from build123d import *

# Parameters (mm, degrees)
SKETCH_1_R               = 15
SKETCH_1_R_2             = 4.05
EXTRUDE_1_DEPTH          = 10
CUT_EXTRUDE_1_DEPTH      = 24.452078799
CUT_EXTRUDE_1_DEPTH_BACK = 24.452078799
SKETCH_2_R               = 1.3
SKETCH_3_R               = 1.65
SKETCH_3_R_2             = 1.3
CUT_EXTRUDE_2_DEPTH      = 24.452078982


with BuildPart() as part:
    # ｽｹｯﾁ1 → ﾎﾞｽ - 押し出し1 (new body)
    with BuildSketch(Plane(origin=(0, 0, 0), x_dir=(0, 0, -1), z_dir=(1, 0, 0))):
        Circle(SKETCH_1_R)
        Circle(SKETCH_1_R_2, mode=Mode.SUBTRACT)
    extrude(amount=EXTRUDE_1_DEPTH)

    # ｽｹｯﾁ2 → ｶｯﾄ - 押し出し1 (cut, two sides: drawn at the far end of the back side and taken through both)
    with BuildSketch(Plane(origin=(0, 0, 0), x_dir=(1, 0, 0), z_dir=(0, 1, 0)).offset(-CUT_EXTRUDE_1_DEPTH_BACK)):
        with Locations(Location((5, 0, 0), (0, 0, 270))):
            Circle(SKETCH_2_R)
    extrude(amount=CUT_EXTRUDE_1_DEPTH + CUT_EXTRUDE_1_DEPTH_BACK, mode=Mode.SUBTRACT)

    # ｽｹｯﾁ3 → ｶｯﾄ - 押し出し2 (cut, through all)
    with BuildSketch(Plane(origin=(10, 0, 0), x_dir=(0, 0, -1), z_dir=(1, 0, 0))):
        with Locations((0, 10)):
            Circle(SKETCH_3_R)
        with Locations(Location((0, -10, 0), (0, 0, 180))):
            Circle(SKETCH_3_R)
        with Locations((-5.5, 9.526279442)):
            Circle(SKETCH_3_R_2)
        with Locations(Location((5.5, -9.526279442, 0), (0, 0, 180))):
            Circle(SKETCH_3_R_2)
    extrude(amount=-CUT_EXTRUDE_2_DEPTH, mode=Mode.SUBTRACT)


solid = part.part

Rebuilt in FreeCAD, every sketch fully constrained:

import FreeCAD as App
import Part
import Sketcher
Q = App.Units.Quantity

doc = App.newDocument("Part")
params = doc.addObject("Spreadsheet::Sheet", "Params")
for row, (alias, value) in enumerate([
    ("sketch1_diameter", "30 mm"),
    ("sketch1_diameter2", "8.1 mm"),
    ("pad1_length", "10 mm"),
    ("sketch2_diameter", "2.6 mm"),
    ("sketch3_diameter", "3.3 mm"),
    ("sketch3_diameter2", "2.6 mm"),
], start=1):
    params.set(f"A{row}", alias)
    params.set(f"B{row}", "=" + value)
    params.setAlias(f"B{row}", alias)

body = doc.addObject("PartDesign::Body", "Body")

sketch1 = body.newObject("Sketcher::SketchObject", "Sketch")
sketch1.AttachmentSupport = (doc.getObject("YZ_Plane"), [""])
sketch1.MapMode = "FlatFace"
sketch1.addGeometry([
    Part.Circle(App.Vector(0, 0, 0), App.Vector(0, 0, 1), 15),
    Part.Circle(App.Vector(0, 0, 0), App.Vector(0, 0, 1), 4),
], False)
sketch1.addConstraint([
    Sketcher.Constraint("Coincident", 0, 3, -1, 1),
    Sketcher.Constraint("Coincident", 1, 3, -1, 1),
    Sketcher.Constraint("Diameter", 0, Q("30 mm")),
    Sketcher.Constraint("Diameter", 1, Q("8.1 mm")),
])
sketch1.setExpression("Constraints[2]", "Params.sketch1_diameter")
sketch1.setExpression("Constraints[3]", "Params.sketch1_diameter2")
pad1 = body.newObject("PartDesign::Pad", "Pad")
pad1.Profile = sketch1
pad1.setExpression("Length", "Params.pad1_length")

sketch2 = body.newObject("Sketcher::SketchObject", "Sketch001")
sketch2.AttachmentSupport = (doc.getObject("XZ_Plane"), [""])
sketch2.MapMode = "FlatFace"
sketch2.addGeometry(Part.Circle(App.Vector(5, 0, 0), App.Vector(0, 0, 1), 1.3), False)
sketch2.addConstraint([
    Sketcher.Constraint("PointOnObject", 0, 3, -1),
    Sketcher.Constraint("Diameter", 0, Q("2.6 mm")),
    Sketcher.Constraint("DistanceX", -1, 1, 0, 3, Q("5 mm")),
])
sketch2.setExpression("Constraints[1]", "Params.sketch2_diameter")
pocket1 = body.newObject("PartDesign::Pocket", "Pocket")
pocket1.Profile = sketch2
pocket1.Type = "ThroughAll"
pocket1.Midplane = True

sketch3 = body.newObject("Sketcher::SketchObject", "Sketch002")
sketch3.AttachmentSupport = (doc.getObject("YZ_Plane"), [""])
sketch3.MapMode = "FlatFace"
sketch3.AttachmentOffset = App.Placement(App.Vector(0, 0, 10), App.Rotation())
sketch3.addGeometry([
    Part.Circle(App.Vector(10, 0, 0), App.Vector(0, 0, 1), 1.6),
    Part.Circle(App.Vector(-10, 0, 0), App.Vector(0, 0, 1), 1.6),
    Part.Circle(App.Vector(9.5, 5.5, 0), App.Vector(0, 0, 1), 1.3),
    Part.Circle(App.Vector(-9.5, -5.5, 0), App.Vector(0, 0, 1), 1.3),
], False)
sketch3.addConstraint([
    Sketcher.Constraint("Equal", 0, 1),
    Sketcher.Constraint("Equal", 2, 3),
    Sketcher.Constraint("Symmetric", 0, 3, 1, 3, -1, 1),
    Sketcher.Constraint("Symmetric", 2, 3, 3, 3, -1, 1),
    Sketcher.Constraint("PointOnObject", 0, 3, -1),
    Sketcher.Constraint("Diameter", 0, Q("3.3 mm")),
    Sketcher.Constraint("Diameter", 2, Q("2.6 mm")),
    Sketcher.Constraint("DistanceX", -1, 1, 0, 3, Q("10 mm")),
    Sketcher.Constraint("DistanceY", 3, 3, 2, 3, Q("11 mm")),
    Sketcher.Constraint("DistanceX", -1, 1, 2, 3, Q("9.526279 mm")),
])
sketch3.setExpression("Constraints[5]", "Params.sketch3_diameter")
sketch3.setExpression("Constraints[6]", "Params.sketch3_diameter2")
pocket2 = body.newObject("PartDesign::Pocket", "Pocket001")
pocket2.Profile = sketch3
pocket2.Type = "ThroughAll"

doc.recompute()
